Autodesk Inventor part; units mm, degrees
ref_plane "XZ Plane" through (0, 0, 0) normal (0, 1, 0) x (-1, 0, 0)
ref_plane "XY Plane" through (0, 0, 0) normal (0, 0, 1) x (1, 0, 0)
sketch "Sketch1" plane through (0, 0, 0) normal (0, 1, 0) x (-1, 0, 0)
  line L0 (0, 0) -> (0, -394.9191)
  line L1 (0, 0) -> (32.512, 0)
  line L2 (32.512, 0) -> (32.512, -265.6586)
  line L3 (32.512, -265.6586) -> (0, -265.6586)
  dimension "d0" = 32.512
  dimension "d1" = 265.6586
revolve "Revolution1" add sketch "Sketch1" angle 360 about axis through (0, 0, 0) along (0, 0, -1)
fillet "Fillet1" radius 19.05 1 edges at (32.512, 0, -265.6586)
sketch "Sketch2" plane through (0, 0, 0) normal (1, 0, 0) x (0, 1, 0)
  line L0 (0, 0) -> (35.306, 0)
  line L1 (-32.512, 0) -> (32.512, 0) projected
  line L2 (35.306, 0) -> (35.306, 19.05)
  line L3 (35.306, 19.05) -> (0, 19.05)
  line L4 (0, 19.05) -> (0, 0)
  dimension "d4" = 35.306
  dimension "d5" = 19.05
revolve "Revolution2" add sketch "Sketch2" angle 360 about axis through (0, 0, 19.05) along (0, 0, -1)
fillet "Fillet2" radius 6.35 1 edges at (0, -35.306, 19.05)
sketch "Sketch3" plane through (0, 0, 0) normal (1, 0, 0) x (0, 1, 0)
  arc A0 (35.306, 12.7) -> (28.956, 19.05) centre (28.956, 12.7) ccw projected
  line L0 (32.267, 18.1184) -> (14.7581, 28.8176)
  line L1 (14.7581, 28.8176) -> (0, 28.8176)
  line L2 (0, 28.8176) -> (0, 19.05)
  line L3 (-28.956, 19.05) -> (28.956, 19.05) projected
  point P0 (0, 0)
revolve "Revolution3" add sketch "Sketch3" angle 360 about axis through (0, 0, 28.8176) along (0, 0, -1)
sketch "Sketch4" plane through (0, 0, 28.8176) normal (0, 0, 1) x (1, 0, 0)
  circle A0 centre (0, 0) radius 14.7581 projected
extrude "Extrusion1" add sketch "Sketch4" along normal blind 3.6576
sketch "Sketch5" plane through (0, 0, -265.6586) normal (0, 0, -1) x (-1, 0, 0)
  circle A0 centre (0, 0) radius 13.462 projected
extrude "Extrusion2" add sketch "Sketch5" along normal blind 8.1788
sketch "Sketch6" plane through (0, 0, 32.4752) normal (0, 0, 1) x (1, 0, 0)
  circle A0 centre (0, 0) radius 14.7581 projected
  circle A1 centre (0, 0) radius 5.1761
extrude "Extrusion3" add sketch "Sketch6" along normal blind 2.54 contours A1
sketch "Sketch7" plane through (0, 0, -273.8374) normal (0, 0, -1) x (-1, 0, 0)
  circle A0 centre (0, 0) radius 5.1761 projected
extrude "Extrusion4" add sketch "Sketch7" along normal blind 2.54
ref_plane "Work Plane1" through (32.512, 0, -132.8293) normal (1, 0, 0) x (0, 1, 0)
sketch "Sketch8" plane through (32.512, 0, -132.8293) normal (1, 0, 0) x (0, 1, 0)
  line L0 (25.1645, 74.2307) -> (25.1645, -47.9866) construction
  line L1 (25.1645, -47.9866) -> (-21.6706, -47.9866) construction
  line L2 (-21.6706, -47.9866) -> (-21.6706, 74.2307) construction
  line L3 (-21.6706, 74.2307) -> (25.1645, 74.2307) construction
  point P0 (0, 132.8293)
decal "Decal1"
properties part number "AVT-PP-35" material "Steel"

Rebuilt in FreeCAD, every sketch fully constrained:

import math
import FreeCAD as App
import Part
import Sketcher

V = App.Vector
Q = App.Units.Quantity


def edges_at(feature, points):
    """Names of the edges that pass closest to the given points."""
    edges = feature.Shape.Edges
    near = lambda p: min(range(len(edges)), key=lambda i: edges[i].distToShape(Part.Vertex(*p))[0])
    return sorted({f"Edge{near(p) + 1}" for p in points})


def add_polygon(sketch, points):
    """Adds a closed chain of lines whose ends are joined by coincident constraints."""
    first, n = sketch.GeometryCount, len(points)
    for a, b in zip(points, points[1:] + points[:1]):
        sketch.addGeometry(Part.LineSegment(App.Vector(*a, 0), App.Vector(*b, 0)), False)
    for i in range(n):
        sketch.addConstraint(Sketcher.Constraint("Coincident", first + i, 2, first + (i + 1) % n, 1))

doc = App.newDocument("Part")
body = doc.addObject("PartDesign::Body", "Body")

sketch1 = doc.addObject("Sketcher::SketchObject", "Sketch")
body.addObject(sketch1)
sketch1.AttachmentSupport = (doc.XZ_Plane, [""])
sketch1.MapMode = "FlatFace"
add_polygon(sketch1, [(-33, 0), (0, 0), (0, -266), (-33, -266)])
sketch1.addConstraint([
    Sketcher.Constraint("Horizontal", 0),
    Sketcher.Constraint("Vertical", 1),
    Sketcher.Constraint("Horizontal", 2),
    Sketcher.Constraint("Vertical", 3),
    Sketcher.Constraint("Coincident", 0, 2, -1, 1),
    Sketcher.Constraint("DistanceX", 0, 1, 0, 2, Q("1.28 in")),
    Sketcher.Constraint("DistanceY", 1, 2, 1, 1, Q("10.459 in")),
])
revolution = doc.addObject("PartDesign::Revolution", "Revolution")
body.addObject(revolution)
revolution.Profile = sketch1
revolution.ReferenceAxis = (sketch1, ["V_Axis"])
revolution.Angle = 360
doc.recompute()

fillet = doc.addObject("PartDesign::Fillet", "Fillet")
body.addObject(fillet)
fillet.Base = (revolution, edges_at(revolution, [(32.512, 0, -265.659)]))
fillet.Radius = Q("0.75 in")

sketch2 = doc.addObject("Sketcher::SketchObject", "Sketch001")
body.addObject(sketch2)
sketch2.AttachmentSupport = (doc.YZ_Plane, [""])
sketch2.MapMode = "FlatFace"
add_polygon(sketch2, [(0, 19), (0, 0), (35, 0), (35, 19)])
sketch2.addConstraint([
    Sketcher.Constraint("Vertical", 0),
    Sketcher.Constraint("Horizontal", 1),
    Sketcher.Constraint("Vertical", 2),
    Sketcher.Constraint("Horizontal", 3),
    Sketcher.Constraint("Coincident", 0, 2, -1, 1),
    Sketcher.Constraint("DistanceX", 1, 1, 1, 2, Q("1.39 in")),
    Sketcher.Constraint("DistanceY", 0, 2, 0, 1, Q("0.75 in")),
])
revolution2 = doc.addObject("PartDesign::Revolution", "Revolution001")
body.addObject(revolution2)
revolution2.Profile = sketch2
revolution2.ReferenceAxis = (sketch2, ["V_Axis"])
revolution2.Angle = 360
doc.recompute()

fillet2 = doc.addObject("PartDesign::Fillet", "Fillet001")
body.addObject(fillet2)
fillet2.Base = (revolution2, edges_at(revolution2, [(0, -35.306, 19.05)]))
fillet2.Radius = Q("0.25 in")

sketch3 = doc.addObject("Sketcher::SketchObject", "Sketch002")
body.addObject(sketch3)
sketch3.AttachmentSupport = (doc.YZ_Plane, [""])
sketch3.MapMode = "FlatFace"
sketch3.addGeometry([
    Part.ArcOfCircle(Part.Circle(V(29, 12.7, 0), V(0, 0, 1), 6.3), math.radians(59), math.radians(90)),
    Part.LineSegment(V(32.3, 18.1, 0), V(14.8, 28.8, 0)),
    Part.LineSegment(V(14.8, 28.8, 0), V(0, 28.8, 0)),
    Part.LineSegment(V(0, 28.8, 0), V(0, 19.1, 0)),
    Part.LineSegment(V(0, 19.1, 0), V(29, 19.1, 0)),
], False)
sketch3.addConstraint([
    Sketcher.Constraint("Tangent", 0, 1, 1, 1),
    Sketcher.Constraint("Coincident", 1, 2, 2, 1),
    Sketcher.Constraint("Coincident", 2, 2, 3, 1),
    Sketcher.Constraint("Coincident", 3, 2, 4, 1),
    Sketcher.Constraint("Tangent", 4, 2, 0, 2),
    Sketcher.Constraint("Horizontal", 2),
    Sketcher.Constraint("Vertical", 3),
    Sketcher.Constraint("Horizontal", 4),
    Sketcher.Constraint("PointOnObject", 2, 2, -2),
    Sketcher.Constraint("Radius", 0, Q("0.25 in")),
    Sketcher.Constraint("DistanceX", 4, 1, 4, 2, Q("1.14 in")),
    Sketcher.Constraint("DistanceY", -1, 1, 0, 3, Q("0.5 in")),
    Sketcher.Constraint("DistanceX", 2, 2, 2, 1, Q("14.758 mm")),
    Sketcher.Constraint("DistanceY", 3, 2, 3, 1, Q("9.7676 mm")),
])
revolution3 = doc.addObject("PartDesign::Revolution", "Revolution002")
body.addObject(revolution3)
revolution3.Profile = sketch3
revolution3.ReferenceAxis = (sketch3, ["V_Axis"])
revolution3.Angle = 360

sketch4 = doc.addObject("Sketcher::SketchObject", "Sketch003")
body.addObject(sketch4)
sketch4.AttachmentSupport = (doc.XY_Plane, [""])
sketch4.MapMode = "FlatFace"
sketch4.AttachmentOffset = App.Placement(V(0, 0, 28.8176), App.Rotation())
sketch4.addGeometry(Part.Circle(V(0, 0, 0), V(0, 0, 1), 15), False)
sketch4.addConstraint([
    Sketcher.Constraint("Coincident", 0, 3, -1, 1),
    Sketcher.Constraint("Diameter", 0, Q("29.5162 mm")),
])
pad1 = doc.addObject("PartDesign::Pad", "Pad")
body.addObject(pad1)
pad1.Profile = sketch4
pad1.Length = Q("0.144 in")

sketch5 = doc.addObject("Sketcher::SketchObject", "Sketch004")
body.addObject(sketch5)
sketch5.AttachmentSupport = (doc.XY_Plane, [""])
sketch5.MapMode = "FlatFace"
sketch5.AttachmentOffset = App.Placement(V(0, 0, -10.459 * 25.4), App.Rotation())
sketch5.addGeometry(Part.Circle(V(0, 0, 0), V(0, 0, 1), 13), False)
sketch5.addConstraint([
    Sketcher.Constraint("Coincident", 0, 3, -1, 1),
    Sketcher.Constraint("Diameter", 0, Q("1.06 in")),
])
pad2 = doc.addObject("PartDesign::Pad", "Pad001")
body.addObject(pad2)
pad2.Profile = sketch5
pad2.Length = Q("0.322 in")
pad2.Reversed = True

sketch6 = doc.addObject("Sketcher::SketchObject", "Sketch005")
body.addObject(sketch6)
sketch6.AttachmentSupport = (doc.XY_Plane, [""])
sketch6.MapMode = "FlatFace"
sketch6.AttachmentOffset = App.Placement(V(0, 0, 32.4752), App.Rotation())
sketch6.addGeometry(Part.Circle(V(0, 0, 0), V(0, 0, 1), 5), False)
sketch6.addConstraint([
    Sketcher.Constraint("Coincident", 0, 3, -1, 1),
    Sketcher.Constraint("Diameter", 0, Q("10.3522 mm")),
])
pad3 = doc.addObject("PartDesign::Pad", "Pad002")
body.addObject(pad3)
pad3.Profile = sketch6
pad3.Length = Q("0.1 in")

sketch7 = doc.addObject("Sketcher::SketchObject", "Sketch006")
body.addObject(sketch7)
sketch7.AttachmentSupport = (doc.XY_Plane, [""])
sketch7.MapMode = "FlatFace"
sketch7.AttachmentOffset = App.Placement(V(0, 0, -10.781 * 25.4), App.Rotation())
sketch7.addGeometry(Part.Circle(V(0, 0, 0), V(0, 0, 1), 5), False)
sketch7.addConstraint([
    Sketcher.Constraint("Coincident", 0, 3, -1, 1),
    Sketcher.Constraint("Diameter", 0, Q("10.3522 mm")),
])
pad4 = doc.addObject("PartDesign::Pad", "Pad003")
body.addObject(pad4)
pad4.Profile = sketch7
pad4.Length = Q("0.1 in")
pad4.Reversed = True

doc.recompute()
